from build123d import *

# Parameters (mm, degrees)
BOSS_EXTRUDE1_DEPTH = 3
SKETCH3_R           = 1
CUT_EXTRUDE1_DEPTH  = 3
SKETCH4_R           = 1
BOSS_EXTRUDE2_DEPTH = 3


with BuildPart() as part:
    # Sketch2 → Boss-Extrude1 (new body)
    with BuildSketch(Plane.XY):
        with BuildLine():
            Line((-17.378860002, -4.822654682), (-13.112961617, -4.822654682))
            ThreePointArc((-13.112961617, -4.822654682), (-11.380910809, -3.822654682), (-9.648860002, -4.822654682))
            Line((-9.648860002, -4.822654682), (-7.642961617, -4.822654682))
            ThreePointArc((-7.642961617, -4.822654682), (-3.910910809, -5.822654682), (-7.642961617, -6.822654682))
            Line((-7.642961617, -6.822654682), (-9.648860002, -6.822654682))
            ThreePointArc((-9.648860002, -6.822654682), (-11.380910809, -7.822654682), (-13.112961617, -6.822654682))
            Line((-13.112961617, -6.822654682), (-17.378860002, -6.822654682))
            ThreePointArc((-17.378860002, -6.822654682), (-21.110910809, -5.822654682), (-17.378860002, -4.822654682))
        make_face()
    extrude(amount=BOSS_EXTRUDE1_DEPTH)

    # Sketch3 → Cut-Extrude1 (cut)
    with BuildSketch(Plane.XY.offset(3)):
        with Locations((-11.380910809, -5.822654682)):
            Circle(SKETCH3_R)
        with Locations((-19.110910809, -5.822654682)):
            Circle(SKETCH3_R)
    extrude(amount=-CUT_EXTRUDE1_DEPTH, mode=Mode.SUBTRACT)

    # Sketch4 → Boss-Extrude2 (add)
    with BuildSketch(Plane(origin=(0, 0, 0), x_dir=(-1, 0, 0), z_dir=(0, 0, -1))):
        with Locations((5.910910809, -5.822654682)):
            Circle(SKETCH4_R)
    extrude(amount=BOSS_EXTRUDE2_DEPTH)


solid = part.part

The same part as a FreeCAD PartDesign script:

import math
import FreeCAD as App
import Part
import Sketcher

V = App.Vector

doc = App.newDocument("Part")
body = doc.addObject("PartDesign::Body", "Body")

sketch1 = doc.addObject("Sketcher::SketchObject", "Sketch")
body.addObject(sketch1)
sketch1.AttachmentSupport = (doc.XY_Plane, [""])
sketch1.MapMode = "FlatFace"
sketch1.addGeometry([
    Part.LineSegment(V(-13.1, -4.8, 0), V(-17.4, -4.8, 0)),
    Part.ArcOfCircle(Part.Circle(V(-19.1, -5.8, 0), V(0, 0, 1), 2), math.radians(30), math.radians(330)),
    Part.LineSegment(V(-17.4, -6.8, 0), V(-13.1, -6.8, 0)),
    Part.ArcOfCircle(Part.Circle(V(-11.4, -5.8, 0), V(0, 0, 1), 2), math.radians(-150), math.radians(-30)),
    Part.LineSegment(V(-9.6, -6.8, 0), V(-7.6, -6.8, 0)),
    Part.ArcOfCircle(Part.Circle(V(-5.9, -5.8, 0), V(0, 0, 1), 2), math.radians(-150), math.radians(150)),
    Part.LineSegment(V(-7.6, -4.8, 0), V(-9.6, -4.8, 0)),
    Part.ArcOfCircle(Part.Circle(V(-11.4, -5.8, 0), V(0, 0, 1), 2), math.radians(30), math.radians(150)),
], False)
sketch1.addConstraint([
    Sketcher.Constraint("Coincident", 0, 2, 1, 1),
    Sketcher.Constraint("Coincident", 1, 2, 2, 1),
    Sketcher.Constraint("Coincident", 2, 2, 3, 1),
    Sketcher.Constraint("Coincident", 3, 2, 4, 1),
    Sketcher.Constraint("Coincident", 4, 2, 5, 1),
    Sketcher.Constraint("Coincident", 5, 2, 6, 1),
    Sketcher.Constraint("Coincident", 6, 2, 7, 1),
    Sketcher.Constraint("Coincident", 7, 2, 0, 1),
    Sketcher.Constraint("Horizontal", 0),
    Sketcher.Constraint("Horizontal", 2),
    Sketcher.Constraint("Horizontal", 4),
    Sketcher.Constraint("Horizontal", 6),
    Sketcher.Constraint("Coincident", 7, 3, 3, 3),
    Sketcher.Constraint("Equal", 1, 3),
    Sketcher.Constraint("Equal", 3, 5),
    Sketcher.Constraint("Equal", 5, 7),
    Sketcher.Constraint("Horizontal", 1, 3, 3, 3),
    Sketcher.Constraint("Horizontal", 3, 3, 5, 3),
    Sketcher.Constraint("Horizontal", 2, 2, 3, 2),
    Sketcher.Constraint("Horizontal", 0, 2, 5, 2),
    Sketcher.Constraint("Vertical", 0, 2, 1, 2),
    Sketcher.Constraint("Radius", 1, 2.0),
    Sketcher.Constraint("DistanceY", 1, 3, 0, 2, 1.0),
    Sketcher.Constraint("DistanceX", 1, 3, 5, 3, 13.2),
    Sketcher.Constraint("DistanceX", 1, 3, 3, 3, 7.73),
    Sketcher.Constraint("DistanceX", 1, 3, -1, 1, 19.110911),
    Sketcher.Constraint("DistanceY", 1, 3, -1, 1, 5.822655),
])
pad1 = doc.addObject("PartDesign::Pad", "Pad")
body.addObject(pad1)
pad1.Profile = sketch1
pad1.Length = 3

sketch2 = doc.addObject("Sketcher::SketchObject", "Sketch001")
body.addObject(sketch2)
sketch2.AttachmentSupport = (doc.XY_Plane, [""])
sketch2.MapMode = "FlatFace"
sketch2.AttachmentOffset = App.Placement(V(0, 0, 3), App.Rotation())
sketch2.addGeometry([
    Part.Circle(V(-11.4, -5.8, 0), V(0, 0, 1), 1),
    Part.Circle(V(-19.1, -5.8, 0), V(0, 0, 1), 1),
], False)
sketch2.addConstraint([
    Sketcher.Constraint("Equal", 0, 1),
    Sketcher.Constraint("Horizontal", 0, 3, 1, 3),
    Sketcher.Constraint("Diameter", 0, 2.0),
    Sketcher.Constraint("DistanceX", 1, 3, 0, 3, 7.73),
    Sketcher.Constraint("DistanceX", 0, 3, -1, 1, 11.380911),
    Sketcher.Constraint("DistanceY", 0, 3, -1, 1, 5.822655),
])
pocket1 = doc.addObject("PartDesign::Pocket", "Pocket")
body.addObject(pocket1)
pocket1.Profile = sketch2
pocket1.Length = 3

sketch3 = doc.addObject("Sketcher::SketchObject", "Sketch002")
body.addObject(sketch3)
sketch3.AttachmentSupport = (doc.XY_Plane, [""])
sketch3.MapMode = "FlatFace"
sketch3.addGeometry(Part.Circle(V(-5.9, -5.8, 0), V(0, 0, 1), 1), False)
sketch3.addConstraint([
    Sketcher.Constraint("Diameter", 0, 2.0),
    Sketcher.Constraint("DistanceX", 0, 3, -1, 1, 5.910911),
    Sketcher.Constraint("DistanceY", 0, 3, -1, 1, 5.822655),
])
pad2 = doc.addObject("PartDesign::Pad", "Pad001")
body.addObject(pad2)
pad2.Profile = sketch3
pad2.Length = 3
pad2.Reversed = True

doc.recompute()
